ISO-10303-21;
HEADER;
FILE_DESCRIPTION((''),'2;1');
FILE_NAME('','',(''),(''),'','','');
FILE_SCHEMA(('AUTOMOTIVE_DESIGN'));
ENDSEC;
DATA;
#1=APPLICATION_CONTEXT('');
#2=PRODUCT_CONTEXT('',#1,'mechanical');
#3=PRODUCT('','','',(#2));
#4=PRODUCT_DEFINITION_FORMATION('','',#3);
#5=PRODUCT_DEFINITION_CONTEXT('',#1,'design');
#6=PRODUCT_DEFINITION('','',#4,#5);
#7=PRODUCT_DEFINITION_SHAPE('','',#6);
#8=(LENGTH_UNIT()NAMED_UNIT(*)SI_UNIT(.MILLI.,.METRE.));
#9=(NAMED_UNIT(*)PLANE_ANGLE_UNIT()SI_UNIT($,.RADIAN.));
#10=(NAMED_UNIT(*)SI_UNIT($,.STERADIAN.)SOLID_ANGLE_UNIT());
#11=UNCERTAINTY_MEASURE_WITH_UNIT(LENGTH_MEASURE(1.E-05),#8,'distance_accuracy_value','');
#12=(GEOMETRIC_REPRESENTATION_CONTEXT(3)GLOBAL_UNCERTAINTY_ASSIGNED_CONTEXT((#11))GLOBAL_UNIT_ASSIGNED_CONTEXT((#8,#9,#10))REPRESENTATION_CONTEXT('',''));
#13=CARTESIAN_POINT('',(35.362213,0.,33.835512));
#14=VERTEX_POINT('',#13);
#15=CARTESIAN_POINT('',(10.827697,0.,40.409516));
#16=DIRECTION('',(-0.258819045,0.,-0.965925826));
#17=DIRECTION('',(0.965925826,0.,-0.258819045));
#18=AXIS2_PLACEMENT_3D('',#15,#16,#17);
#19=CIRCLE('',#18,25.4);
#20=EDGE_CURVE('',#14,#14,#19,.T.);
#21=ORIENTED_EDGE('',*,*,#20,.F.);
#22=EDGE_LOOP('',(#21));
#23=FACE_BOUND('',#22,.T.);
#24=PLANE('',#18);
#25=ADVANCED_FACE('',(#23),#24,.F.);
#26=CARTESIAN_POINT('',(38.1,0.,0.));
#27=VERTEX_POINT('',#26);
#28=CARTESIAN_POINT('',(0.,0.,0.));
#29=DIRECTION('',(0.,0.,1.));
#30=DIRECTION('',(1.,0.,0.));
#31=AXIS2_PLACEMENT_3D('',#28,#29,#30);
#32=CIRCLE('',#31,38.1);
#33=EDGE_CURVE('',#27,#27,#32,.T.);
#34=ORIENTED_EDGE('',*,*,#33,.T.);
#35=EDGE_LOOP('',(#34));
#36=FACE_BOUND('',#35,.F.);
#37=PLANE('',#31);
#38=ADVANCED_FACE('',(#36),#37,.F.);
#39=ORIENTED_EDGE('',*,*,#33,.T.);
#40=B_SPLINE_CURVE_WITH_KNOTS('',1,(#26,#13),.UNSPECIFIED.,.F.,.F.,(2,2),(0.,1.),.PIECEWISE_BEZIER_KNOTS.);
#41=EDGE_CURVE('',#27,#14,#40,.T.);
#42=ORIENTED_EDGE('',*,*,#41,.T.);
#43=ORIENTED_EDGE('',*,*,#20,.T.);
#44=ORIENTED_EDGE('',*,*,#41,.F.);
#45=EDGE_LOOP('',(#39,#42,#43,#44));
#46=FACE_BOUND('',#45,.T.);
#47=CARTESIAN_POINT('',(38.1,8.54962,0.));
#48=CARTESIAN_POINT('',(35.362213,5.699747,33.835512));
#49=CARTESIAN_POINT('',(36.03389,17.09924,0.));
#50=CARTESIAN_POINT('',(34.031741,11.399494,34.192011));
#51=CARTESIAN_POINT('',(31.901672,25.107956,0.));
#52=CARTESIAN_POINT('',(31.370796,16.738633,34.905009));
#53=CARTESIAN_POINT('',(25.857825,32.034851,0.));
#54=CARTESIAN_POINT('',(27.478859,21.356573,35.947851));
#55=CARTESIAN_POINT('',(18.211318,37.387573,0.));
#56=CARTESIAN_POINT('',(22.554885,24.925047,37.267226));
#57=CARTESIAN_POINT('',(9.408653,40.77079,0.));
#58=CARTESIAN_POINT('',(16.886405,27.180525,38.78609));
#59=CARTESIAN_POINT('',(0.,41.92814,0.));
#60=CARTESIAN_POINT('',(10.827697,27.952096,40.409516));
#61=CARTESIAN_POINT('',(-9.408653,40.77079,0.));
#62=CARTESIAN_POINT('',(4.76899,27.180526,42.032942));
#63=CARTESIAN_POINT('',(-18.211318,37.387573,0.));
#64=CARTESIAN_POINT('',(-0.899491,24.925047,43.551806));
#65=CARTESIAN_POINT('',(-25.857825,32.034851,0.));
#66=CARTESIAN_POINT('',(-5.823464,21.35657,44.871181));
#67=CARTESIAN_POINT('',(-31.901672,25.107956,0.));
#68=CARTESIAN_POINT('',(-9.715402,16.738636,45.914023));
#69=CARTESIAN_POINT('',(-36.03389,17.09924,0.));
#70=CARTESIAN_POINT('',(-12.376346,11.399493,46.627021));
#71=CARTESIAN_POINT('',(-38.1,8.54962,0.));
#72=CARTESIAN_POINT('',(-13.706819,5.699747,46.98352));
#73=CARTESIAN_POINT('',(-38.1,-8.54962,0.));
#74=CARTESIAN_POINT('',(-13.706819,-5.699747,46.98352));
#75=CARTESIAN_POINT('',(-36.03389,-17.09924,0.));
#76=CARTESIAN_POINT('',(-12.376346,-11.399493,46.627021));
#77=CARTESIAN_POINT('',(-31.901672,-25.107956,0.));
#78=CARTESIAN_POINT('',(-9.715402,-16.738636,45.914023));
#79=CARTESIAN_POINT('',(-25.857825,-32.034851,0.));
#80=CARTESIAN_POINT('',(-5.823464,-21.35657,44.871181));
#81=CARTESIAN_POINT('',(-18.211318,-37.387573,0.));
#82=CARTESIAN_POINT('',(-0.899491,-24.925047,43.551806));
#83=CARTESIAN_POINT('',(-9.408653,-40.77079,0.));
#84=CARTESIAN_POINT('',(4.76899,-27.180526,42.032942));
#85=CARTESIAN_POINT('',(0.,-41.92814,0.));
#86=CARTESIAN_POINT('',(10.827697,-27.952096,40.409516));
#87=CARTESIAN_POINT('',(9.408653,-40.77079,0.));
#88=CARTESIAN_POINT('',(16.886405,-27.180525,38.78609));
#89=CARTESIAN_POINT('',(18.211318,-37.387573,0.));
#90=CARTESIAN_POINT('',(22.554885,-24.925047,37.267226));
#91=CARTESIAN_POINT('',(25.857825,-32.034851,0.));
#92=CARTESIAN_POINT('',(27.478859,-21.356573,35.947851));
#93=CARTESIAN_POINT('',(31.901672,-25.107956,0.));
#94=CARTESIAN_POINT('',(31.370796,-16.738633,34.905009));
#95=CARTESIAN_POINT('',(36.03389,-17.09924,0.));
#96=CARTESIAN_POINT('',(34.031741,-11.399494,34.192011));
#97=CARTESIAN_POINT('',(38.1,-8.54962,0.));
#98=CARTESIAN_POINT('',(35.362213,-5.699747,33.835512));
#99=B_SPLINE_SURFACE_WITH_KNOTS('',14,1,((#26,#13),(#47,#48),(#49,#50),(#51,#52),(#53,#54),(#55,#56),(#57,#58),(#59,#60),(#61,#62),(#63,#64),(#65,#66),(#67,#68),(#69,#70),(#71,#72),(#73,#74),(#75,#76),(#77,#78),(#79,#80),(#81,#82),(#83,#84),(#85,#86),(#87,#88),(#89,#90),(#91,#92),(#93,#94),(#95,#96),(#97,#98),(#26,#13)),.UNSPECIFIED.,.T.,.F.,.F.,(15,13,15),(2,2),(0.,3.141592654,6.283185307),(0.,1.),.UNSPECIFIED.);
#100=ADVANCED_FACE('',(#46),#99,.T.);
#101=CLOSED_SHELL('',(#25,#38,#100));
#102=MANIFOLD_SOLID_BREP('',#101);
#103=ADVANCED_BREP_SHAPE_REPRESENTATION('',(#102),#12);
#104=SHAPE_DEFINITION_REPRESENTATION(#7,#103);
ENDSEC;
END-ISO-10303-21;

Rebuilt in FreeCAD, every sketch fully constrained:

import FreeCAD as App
import Part
import Sketcher

V = App.Vector
Q = App.Units.Quantity

doc = App.newDocument("Part")
body = doc.addObject("PartDesign::Body", "Body")

# Sketch on XY plane
sketch1 = doc.addObject("Sketcher::SketchObject", "Sketch")
body.addObject(sketch1)
sketch1.AttachmentSupport = (doc.XY_Plane, [""])
sketch1.MapMode = "FlatFace"
sketch1.addGeometry(Part.Circle(V(0, 0, 0), V(0, 0, 1), 38), False)
sketch1.addConstraint(Sketcher.Constraint("Coincident", 0, 3, -1, 1))
sketch1.addConstraint(Sketcher.Constraint("Diameter", 0, Q("3 in")))

# Sketch on an angled plane
sketch2 = doc.addObject("Sketcher::SketchObject", "Sketch001")
body.addObject(sketch2)
sketch2.Placement = App.Placement(V(10.827697, 0, 40.409516), App.Rotation(V(0.965925826, 0, -0.258819045), V(0, -0.999999999, 0), V(-0.258819045, 0, -0.965925826), "ZXY"))
sketch2.addGeometry(Part.Circle(V(0, 0, 0), V(0, 0, 1), 25), False)
sketch2.addConstraint(Sketcher.Constraint("Coincident", 0, 3, -1, 1))
sketch2.addConstraint(Sketcher.Constraint("Diameter", 0, Q("2 in")))

additiveloft = doc.addObject("PartDesign::AdditiveLoft", "AdditiveLoft")
body.addObject(additiveloft)
additiveloft.Profile = sketch1
additiveloft.Sections = [sketch2]

doc.recompute()
